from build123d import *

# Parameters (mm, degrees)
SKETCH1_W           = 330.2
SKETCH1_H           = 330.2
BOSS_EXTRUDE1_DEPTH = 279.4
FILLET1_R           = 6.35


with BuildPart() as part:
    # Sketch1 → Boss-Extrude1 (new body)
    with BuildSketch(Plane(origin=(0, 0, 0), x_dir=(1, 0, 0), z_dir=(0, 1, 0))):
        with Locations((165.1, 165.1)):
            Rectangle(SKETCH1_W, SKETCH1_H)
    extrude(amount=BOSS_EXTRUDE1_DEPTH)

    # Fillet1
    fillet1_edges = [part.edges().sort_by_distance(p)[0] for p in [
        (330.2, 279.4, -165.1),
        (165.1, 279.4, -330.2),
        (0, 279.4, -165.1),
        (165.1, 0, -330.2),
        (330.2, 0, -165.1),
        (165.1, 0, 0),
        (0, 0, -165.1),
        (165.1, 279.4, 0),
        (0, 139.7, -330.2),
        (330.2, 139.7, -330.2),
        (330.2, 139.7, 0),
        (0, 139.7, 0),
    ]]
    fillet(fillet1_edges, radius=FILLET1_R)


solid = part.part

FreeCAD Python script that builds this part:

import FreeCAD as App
import Part
import Sketcher
Q = App.Units.Quantity


def add_polygon(sketch, points):
    """Adds a closed chain of lines whose ends are joined by coincident constraints."""
    first, n = sketch.GeometryCount, len(points)
    for a, b in zip(points, points[1:] + points[:1]):
        sketch.addGeometry(Part.LineSegment(App.Vector(*a, 0), App.Vector(*b, 0)), False)
    for i in range(n):
        sketch.addConstraint(Sketcher.Constraint("Coincident", first + i, 2, first + (i + 1) % n, 1))

doc = App.newDocument("Part")
body = doc.addObject("PartDesign::Body", "Body")

sketch1 = body.newObject("Sketcher::SketchObject", "Sketch")
sketch1.AttachmentSupport = (doc.getObject("XZ_Plane"), [""])
sketch1.MapMode = "FlatFace"
add_polygon(sketch1, [(0, -330.2), (0, 0), (330.2, 0), (330.2, -330.2)])
sketch1.addConstraint(Sketcher.Constraint("Vertical", 0))
sketch1.addConstraint(Sketcher.Constraint("Horizontal", 1))
sketch1.addConstraint(Sketcher.Constraint("Vertical", 2))
sketch1.addConstraint(Sketcher.Constraint("Horizontal", 3))
sketch1.addConstraint(Sketcher.Constraint("Coincident", 0, 2, -1, 1))
sketch1.addConstraint(Sketcher.Constraint("Equal", 3, 0))
sketch1.addConstraint(Sketcher.Constraint("DistanceX", 1, 1, 1, 2, Q("13 in")))
pad1 = body.newObject("PartDesign::Pad", "Pad")
pad1.Profile = sketch1
pad1.Length = Q("11 in")
pad1.Reversed = True
doc.recompute()

fillet = body.newObject("PartDesign::Fillet", "Fillet")
fillet.Base = (pad1, ["Edge1"])
fillet.UseAllEdges = True
fillet.Radius = Q("0.25 in")

doc.recompute()
